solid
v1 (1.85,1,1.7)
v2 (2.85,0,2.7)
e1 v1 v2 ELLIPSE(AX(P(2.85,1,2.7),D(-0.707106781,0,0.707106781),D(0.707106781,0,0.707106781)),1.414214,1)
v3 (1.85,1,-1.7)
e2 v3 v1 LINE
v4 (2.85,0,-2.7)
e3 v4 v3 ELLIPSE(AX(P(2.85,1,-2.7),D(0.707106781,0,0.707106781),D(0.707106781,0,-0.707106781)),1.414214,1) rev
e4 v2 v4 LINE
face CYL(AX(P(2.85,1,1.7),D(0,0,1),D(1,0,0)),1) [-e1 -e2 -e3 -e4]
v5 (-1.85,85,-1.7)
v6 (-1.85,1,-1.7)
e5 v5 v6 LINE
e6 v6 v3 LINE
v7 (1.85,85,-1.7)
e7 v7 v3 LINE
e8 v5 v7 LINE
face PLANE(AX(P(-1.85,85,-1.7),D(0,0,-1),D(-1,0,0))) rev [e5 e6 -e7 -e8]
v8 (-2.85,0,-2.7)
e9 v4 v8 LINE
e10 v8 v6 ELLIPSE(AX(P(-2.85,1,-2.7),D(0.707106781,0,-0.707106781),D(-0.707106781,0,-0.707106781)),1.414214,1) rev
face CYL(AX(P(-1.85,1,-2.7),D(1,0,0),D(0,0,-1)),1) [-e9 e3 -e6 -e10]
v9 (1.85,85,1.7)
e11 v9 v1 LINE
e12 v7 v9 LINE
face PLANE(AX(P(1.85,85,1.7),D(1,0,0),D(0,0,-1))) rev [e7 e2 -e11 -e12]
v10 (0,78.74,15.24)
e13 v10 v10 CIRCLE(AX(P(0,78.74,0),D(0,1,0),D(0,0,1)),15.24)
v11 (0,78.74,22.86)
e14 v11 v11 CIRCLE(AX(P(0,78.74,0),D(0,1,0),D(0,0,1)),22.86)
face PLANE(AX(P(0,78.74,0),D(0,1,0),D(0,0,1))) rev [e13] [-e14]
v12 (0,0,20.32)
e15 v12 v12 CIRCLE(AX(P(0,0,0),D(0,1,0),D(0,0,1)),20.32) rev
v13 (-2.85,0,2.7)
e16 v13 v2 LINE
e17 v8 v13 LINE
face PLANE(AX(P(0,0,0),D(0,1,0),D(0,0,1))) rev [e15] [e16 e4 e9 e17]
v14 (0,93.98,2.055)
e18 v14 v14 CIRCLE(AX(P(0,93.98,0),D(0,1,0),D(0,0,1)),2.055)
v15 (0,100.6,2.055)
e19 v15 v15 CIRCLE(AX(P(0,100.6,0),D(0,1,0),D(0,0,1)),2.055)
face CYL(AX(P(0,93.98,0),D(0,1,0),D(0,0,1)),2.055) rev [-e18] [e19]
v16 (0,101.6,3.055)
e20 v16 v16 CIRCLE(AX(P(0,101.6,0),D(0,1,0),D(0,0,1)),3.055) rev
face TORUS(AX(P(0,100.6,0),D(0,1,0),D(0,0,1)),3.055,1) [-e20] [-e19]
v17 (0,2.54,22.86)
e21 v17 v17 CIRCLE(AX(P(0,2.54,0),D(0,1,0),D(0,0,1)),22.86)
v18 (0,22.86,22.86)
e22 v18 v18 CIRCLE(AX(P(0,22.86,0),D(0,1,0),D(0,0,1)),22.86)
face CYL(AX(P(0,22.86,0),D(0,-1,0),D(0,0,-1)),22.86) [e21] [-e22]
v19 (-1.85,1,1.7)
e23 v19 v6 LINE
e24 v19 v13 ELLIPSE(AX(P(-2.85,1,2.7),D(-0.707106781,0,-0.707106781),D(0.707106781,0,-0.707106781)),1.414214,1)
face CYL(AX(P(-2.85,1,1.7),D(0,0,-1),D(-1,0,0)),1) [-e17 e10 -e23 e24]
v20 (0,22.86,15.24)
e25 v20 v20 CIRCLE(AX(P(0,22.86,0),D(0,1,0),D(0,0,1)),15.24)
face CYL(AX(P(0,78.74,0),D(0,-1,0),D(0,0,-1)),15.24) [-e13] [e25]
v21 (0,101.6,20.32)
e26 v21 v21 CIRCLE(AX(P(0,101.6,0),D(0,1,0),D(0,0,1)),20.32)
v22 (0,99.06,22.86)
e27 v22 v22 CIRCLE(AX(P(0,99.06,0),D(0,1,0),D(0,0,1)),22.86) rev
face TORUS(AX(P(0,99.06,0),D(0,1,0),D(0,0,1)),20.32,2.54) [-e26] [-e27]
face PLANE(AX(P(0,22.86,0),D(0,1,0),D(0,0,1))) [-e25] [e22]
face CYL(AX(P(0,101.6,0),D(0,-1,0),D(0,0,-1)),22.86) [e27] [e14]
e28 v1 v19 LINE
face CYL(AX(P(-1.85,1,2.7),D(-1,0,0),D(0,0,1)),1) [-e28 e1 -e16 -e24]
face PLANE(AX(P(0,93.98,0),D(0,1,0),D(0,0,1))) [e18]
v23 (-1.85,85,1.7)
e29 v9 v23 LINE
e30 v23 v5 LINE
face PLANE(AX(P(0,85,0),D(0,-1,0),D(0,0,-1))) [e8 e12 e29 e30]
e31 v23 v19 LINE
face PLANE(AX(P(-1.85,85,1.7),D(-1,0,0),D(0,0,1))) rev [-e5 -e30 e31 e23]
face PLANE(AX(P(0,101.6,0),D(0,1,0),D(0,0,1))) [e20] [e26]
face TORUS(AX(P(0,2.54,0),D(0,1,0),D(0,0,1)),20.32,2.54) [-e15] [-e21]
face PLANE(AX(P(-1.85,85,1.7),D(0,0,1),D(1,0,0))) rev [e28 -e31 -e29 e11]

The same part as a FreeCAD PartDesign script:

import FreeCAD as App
import Part
import Sketcher
from FreeCAD import Vector
Q = App.Units.Quantity


def edges_at(feature, points):
    """Names of the edges that pass closest to the given points."""
    edges = feature.Shape.Edges
    near = lambda p: min(range(len(edges)), key=lambda i: edges[i].distToShape(Part.Vertex(*p))[0])
    return sorted({f"Edge{near(p) + 1}" for p in points})


def add_polygon(sketch, points):
    """Adds a closed chain of lines whose ends are joined by coincident constraints."""
    first, n = sketch.GeometryCount, len(points)
    for a, b in zip(points, points[1:] + points[:1]):
        sketch.addGeometry(Part.LineSegment(App.Vector(*a, 0), App.Vector(*b, 0)), False)
    for i in range(n):
        sketch.addConstraint(Sketcher.Constraint("Coincident", first + i, 2, first + (i + 1) % n, 1))

doc = App.newDocument("Part")
params = doc.addObject("Spreadsheet::Sheet", "Params")
for row, (alias, value) in enumerate([
    ("sketch1_diameter", "1.8 in"),
    ("pad1_length", "0.9 in"),
    ("sketch2_diameter", "1.2 in"),
    ("pad2_length", "2.2 in"),
    ("sketch3_diameter", "1.8 in"),
    ("pad3_length", "0.9 in"),
    ("fillet_radius", "0.1 in"),
    ("pocket1_length", "0.3 in"),
    ("pocket2_length", "85 mm"),
    ("fillet2_radius", "1 mm"),
], start=1):
    params.set(f"A{row}", alias)
    params.set(f"B{row}", "=" + value)
    params.setAlias(f"B{row}", alias)

body = doc.addObject("PartDesign::Body", "Body")

# Sketch on XZ plane
sketch1 = body.newObject("Sketcher::SketchObject", "Sketch")
sketch1.AttachmentSupport = (doc.getObject("XZ_Plane"), [""])
sketch1.MapMode = "FlatFace"
sketch1.addGeometry(Part.Circle(Vector(0, 0, 0), Vector(0, 0, 1), 22.86), False)
sketch1.addConstraint(Sketcher.Constraint("Coincident", 0, 3, -1, 1))
sketch1.addConstraint(Sketcher.Constraint("Diameter", 0, Q("1.8 in")))
sketch1.setExpression("Constraints[1]", "Params.sketch1_diameter")
pad1 = body.newObject("PartDesign::Pad", "Pad")
pad1.Profile = sketch1
pad1.setExpression("Length", "Params.pad1_length")
pad1.Reversed = True

# Sketch on XZ plane
sketch2 = body.newObject("Sketcher::SketchObject", "Sketch001")
sketch2.AttachmentSupport = (doc.getObject("XZ_Plane"), [""])
sketch2.MapMode = "FlatFace"
sketch2.AttachmentOffset = App.Placement(Vector(0, 0, -0.9 * 25.4), App.Rotation())
sketch2.addGeometry(Part.Circle(Vector(0, 0, 0), Vector(0, 0, 1), 15.24), False)
sketch2.addConstraint(Sketcher.Constraint("Coincident", 0, 3, -1, 1))
sketch2.addConstraint(Sketcher.Constraint("Diameter", 0, Q("1.2 in")))
sketch2.setExpression("Constraints[1]", "Params.sketch2_diameter")
pad2 = body.newObject("PartDesign::Pad", "Pad001")
pad2.Profile = sketch2
pad2.setExpression("Length", "Params.pad2_length")
pad2.Reversed = True

# Sketch on XZ plane
sketch3 = body.newObject("Sketcher::SketchObject", "Sketch002")
sketch3.AttachmentSupport = (doc.getObject("XZ_Plane"), [""])
sketch3.MapMode = "FlatFace"
sketch3.AttachmentOffset = App.Placement(Vector(0, 0, -3.1 * 25.4), App.Rotation())
sketch3.addGeometry(Part.Circle(Vector(0, 0, 0), Vector(0, 0, 1), 22.86), False)
sketch3.addConstraint(Sketcher.Constraint("Coincident", 0, 3, -1, 1))
sketch3.addConstraint(Sketcher.Constraint("Diameter", 0, Q("1.8 in")))
sketch3.setExpression("Constraints[1]", "Params.sketch3_diameter")
pad3 = body.newObject("PartDesign::Pad", "Pad002")
pad3.Profile = sketch3
pad3.setExpression("Length", "Params.pad3_length")
pad3.Reversed = True
doc.recompute()

fillet = body.newObject("PartDesign::Fillet", "Fillet")
fillet.Base = (pad3, edges_at(pad3, [(-22.86, 101.6, 0), (-22.86, 0, 0)]))
fillet.setExpression("Radius", "Params.fillet_radius")

# Sketch on XZ plane
sketch4 = body.newObject("Sketcher::SketchObject", "Sketch003")
sketch4.AttachmentSupport = (doc.getObject("XZ_Plane"), [""])
sketch4.MapMode = "FlatFace"
sketch4.AttachmentOffset = App.Placement(Vector(0, 0, -4 * 25.4), App.Rotation())
sketch4.addGeometry(Part.Circle(Vector(0, 0, 0), Vector(0, 0, 1), 2.055), False)
sketch4.addConstraint(Sketcher.Constraint("Coincident", 0, 3, -1, 1))
sketch4.addConstraint(Sketcher.Constraint("Diameter", 0, 4.11))
pocket1 = body.newObject("PartDesign::Pocket", "Pocket")
pocket1.Profile = sketch4
pocket1.setExpression("Length", "Params.pocket1_length")
pocket1.Reversed = True

# Sketch on XZ plane
sketch5 = body.newObject("Sketcher::SketchObject", "Sketch004")
sketch5.AttachmentSupport = (doc.getObject("XZ_Plane"), [""])
sketch5.MapMode = "FlatFace"
add_polygon(sketch5, [(-1.85, 1.7), (-1.85, -1.7), (1.85, -1.7), (1.85, 1.7)])  # lines 0-3
sketch5.addConstraint(Sketcher.Constraint("Vertical", 0))
sketch5.addConstraint(Sketcher.Constraint("Horizontal", 1))
sketch5.addConstraint(Sketcher.Constraint("Vertical", 2))
sketch5.addConstraint(Sketcher.Constraint("Horizontal", 3))
sketch5.addConstraint(Sketcher.Constraint("Symmetric", 0, 2, 2, 2, -1, 1))
sketch5.addConstraint(Sketcher.Constraint("DistanceX", 1, 1, 1, 2, 3.7))
sketch5.addConstraint(Sketcher.Constraint("DistanceY", 0, 2, 0, 1, 3.4))
pocket2 = body.newObject("PartDesign::Pocket", "Pocket001")
pocket2.Profile = sketch5
pocket2.setExpression("Length", "Params.pocket2_length")
doc.recompute()

fillet2 = body.newObject("PartDesign::Fillet", "Fillet001")
fillet2.Base = (pocket2, edges_at(pocket2, [
    (-2.055, 101.6, 0),
    (-1.85, 0, 0),
    (0, 0, -1.7),
    (1.85, 0, 0),
    (0, 0, 1.7),
]))
fillet2.setExpression("Radius", "Params.fillet2_radius")

doc.recompute()
